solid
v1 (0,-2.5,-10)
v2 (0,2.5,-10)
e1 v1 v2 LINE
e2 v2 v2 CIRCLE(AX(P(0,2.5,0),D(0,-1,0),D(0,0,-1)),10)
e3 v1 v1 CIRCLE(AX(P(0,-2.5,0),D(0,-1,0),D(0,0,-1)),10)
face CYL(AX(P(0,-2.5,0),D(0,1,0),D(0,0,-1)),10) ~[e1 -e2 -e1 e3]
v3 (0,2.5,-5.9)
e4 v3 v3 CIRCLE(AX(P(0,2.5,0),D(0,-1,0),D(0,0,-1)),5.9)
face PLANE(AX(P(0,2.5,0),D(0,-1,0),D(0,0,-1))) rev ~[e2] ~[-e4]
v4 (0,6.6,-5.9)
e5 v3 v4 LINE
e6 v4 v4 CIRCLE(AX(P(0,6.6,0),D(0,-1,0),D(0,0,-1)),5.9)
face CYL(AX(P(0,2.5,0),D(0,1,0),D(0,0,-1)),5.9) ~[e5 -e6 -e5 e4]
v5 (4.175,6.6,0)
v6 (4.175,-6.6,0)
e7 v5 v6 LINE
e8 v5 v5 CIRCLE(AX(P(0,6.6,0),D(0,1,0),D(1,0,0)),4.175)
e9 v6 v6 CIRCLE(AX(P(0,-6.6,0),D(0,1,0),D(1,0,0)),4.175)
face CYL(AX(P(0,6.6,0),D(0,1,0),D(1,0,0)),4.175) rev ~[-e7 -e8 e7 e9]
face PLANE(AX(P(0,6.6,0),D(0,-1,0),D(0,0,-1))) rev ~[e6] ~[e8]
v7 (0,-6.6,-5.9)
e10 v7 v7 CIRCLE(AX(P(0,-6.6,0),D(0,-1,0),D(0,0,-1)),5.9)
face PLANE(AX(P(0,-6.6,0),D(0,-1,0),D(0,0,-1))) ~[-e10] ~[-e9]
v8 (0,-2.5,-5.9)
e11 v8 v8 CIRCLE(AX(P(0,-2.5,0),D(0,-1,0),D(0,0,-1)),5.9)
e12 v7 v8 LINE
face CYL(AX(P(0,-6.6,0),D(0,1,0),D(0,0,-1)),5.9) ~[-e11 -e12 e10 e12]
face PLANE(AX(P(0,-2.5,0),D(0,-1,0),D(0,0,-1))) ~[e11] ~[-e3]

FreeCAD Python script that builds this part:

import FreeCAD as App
import Part
import Sketcher
from FreeCAD import Vector


def add_polygon(sketch, points):
    """Adds a closed chain of lines whose ends are joined by coincident constraints."""
    first, n = sketch.GeometryCount, len(points)
    for a, b in zip(points, points[1:] + points[:1]):
        sketch.addGeometry(Part.LineSegment(App.Vector(*a, 0), App.Vector(*b, 0)), False)
    for i in range(n):
        sketch.addConstraint(Sketcher.Constraint("Coincident", first + i, 2, first + (i + 1) % n, 1))

doc = App.newDocument("Part")
params = doc.addObject("Spreadsheet::Sheet", "Params")
for row, (alias, value) in enumerate([
    ("sketch1_width", "5 mm"),
    ("sketch1_width2", "13.2 mm"),
    ("sketch1_height", "5.9 mm"),
    ("revolution_angle", "360 deg"),
    ("sketch2_diameter", "8.35 mm"),
], start=1):
    params.set(f"A{row}", alias)
    params.set(f"B{row}", "=" + value)
    params.setAlias(f"B{row}", alias)

body = doc.addObject("PartDesign::Body", "Body")

# Sketch on YZ plane
sketch1 = doc.addObject("Sketcher::SketchObject", "Sketch")
body.addObject(sketch1)
sketch1.AttachmentSupport = (doc.YZ_Plane, [""])
sketch1.MapMode = "FlatFace"
add_polygon(sketch1, [(6.6, 0), (-6.6, 0), (-6.6, -5.9), (-2.5, -5.9), (-2.5, -10), (2.5, -10), (2.5, -5.9), (6.6, -5.9)])  # lines 0-7
sketch1.addConstraint([
    Sketcher.Constraint("Horizontal", 0),
    Sketcher.Constraint("Vertical", 1),
    Sketcher.Constraint("Horizontal", 2),
    Sketcher.Constraint("Vertical", 3),
    Sketcher.Constraint("Horizontal", 4),
    Sketcher.Constraint("Vertical", 5),
    Sketcher.Constraint("Horizontal", 6),
    Sketcher.Constraint("Vertical", 7),
    Sketcher.Constraint("Symmetric", 0, 2, 7, 2, -1, 1),
    Sketcher.Constraint("Symmetric", 2, 2, 5, 2, -2),
    Sketcher.Constraint("Equal", 6, 3),
    Sketcher.Constraint("DistanceX", 4, 1, 4, 2, 5.0),
    Sketcher.Constraint("DistanceX", 0, 2, 0, 1, 13.2),
    Sketcher.Constraint("DistanceY", 1, 2, 1, 1, 5.9),
])
sketch1.setExpression("Constraints[19]", "Params.sketch1_width")
sketch1.setExpression("Constraints[20]", "Params.sketch1_width2")
sketch1.setExpression("Constraints[21]", "Params.sketch1_height")
revolution = doc.addObject("PartDesign::Revolution", "Revolution")
body.addObject(revolution)
revolution.Profile = sketch1
revolution.ReferenceAxis = (sketch1, ["H_Axis"])
revolution.setExpression("Angle", "Params.revolution_angle")

# Sketch on XZ plane
sketch2 = doc.addObject("Sketcher::SketchObject", "Sketch001")
body.addObject(sketch2)
sketch2.AttachmentSupport = (doc.XZ_Plane, [""])
sketch2.MapMode = "FlatFace"
sketch2.AttachmentOffset = App.Placement(Vector(0, 0, -6.6), App.Rotation())
sketch2.addGeometry(Part.Circle(Vector(0, 0, 0), Vector(0, 0, 1), 4.175), False)
sketch2.addConstraint([
    Sketcher.Constraint("Coincident", 0, 3, -1, 1),
    Sketcher.Constraint("Diameter", 0, 8.35),
])
sketch2.setExpression("Constraints[1]", "Params.sketch2_diameter")
pocket1 = doc.addObject("PartDesign::Pocket", "Pocket")
body.addObject(pocket1)
pocket1.Profile = sketch2
pocket1.Type = "ThroughAll"
pocket1.Reversed = True

doc.recompute()
